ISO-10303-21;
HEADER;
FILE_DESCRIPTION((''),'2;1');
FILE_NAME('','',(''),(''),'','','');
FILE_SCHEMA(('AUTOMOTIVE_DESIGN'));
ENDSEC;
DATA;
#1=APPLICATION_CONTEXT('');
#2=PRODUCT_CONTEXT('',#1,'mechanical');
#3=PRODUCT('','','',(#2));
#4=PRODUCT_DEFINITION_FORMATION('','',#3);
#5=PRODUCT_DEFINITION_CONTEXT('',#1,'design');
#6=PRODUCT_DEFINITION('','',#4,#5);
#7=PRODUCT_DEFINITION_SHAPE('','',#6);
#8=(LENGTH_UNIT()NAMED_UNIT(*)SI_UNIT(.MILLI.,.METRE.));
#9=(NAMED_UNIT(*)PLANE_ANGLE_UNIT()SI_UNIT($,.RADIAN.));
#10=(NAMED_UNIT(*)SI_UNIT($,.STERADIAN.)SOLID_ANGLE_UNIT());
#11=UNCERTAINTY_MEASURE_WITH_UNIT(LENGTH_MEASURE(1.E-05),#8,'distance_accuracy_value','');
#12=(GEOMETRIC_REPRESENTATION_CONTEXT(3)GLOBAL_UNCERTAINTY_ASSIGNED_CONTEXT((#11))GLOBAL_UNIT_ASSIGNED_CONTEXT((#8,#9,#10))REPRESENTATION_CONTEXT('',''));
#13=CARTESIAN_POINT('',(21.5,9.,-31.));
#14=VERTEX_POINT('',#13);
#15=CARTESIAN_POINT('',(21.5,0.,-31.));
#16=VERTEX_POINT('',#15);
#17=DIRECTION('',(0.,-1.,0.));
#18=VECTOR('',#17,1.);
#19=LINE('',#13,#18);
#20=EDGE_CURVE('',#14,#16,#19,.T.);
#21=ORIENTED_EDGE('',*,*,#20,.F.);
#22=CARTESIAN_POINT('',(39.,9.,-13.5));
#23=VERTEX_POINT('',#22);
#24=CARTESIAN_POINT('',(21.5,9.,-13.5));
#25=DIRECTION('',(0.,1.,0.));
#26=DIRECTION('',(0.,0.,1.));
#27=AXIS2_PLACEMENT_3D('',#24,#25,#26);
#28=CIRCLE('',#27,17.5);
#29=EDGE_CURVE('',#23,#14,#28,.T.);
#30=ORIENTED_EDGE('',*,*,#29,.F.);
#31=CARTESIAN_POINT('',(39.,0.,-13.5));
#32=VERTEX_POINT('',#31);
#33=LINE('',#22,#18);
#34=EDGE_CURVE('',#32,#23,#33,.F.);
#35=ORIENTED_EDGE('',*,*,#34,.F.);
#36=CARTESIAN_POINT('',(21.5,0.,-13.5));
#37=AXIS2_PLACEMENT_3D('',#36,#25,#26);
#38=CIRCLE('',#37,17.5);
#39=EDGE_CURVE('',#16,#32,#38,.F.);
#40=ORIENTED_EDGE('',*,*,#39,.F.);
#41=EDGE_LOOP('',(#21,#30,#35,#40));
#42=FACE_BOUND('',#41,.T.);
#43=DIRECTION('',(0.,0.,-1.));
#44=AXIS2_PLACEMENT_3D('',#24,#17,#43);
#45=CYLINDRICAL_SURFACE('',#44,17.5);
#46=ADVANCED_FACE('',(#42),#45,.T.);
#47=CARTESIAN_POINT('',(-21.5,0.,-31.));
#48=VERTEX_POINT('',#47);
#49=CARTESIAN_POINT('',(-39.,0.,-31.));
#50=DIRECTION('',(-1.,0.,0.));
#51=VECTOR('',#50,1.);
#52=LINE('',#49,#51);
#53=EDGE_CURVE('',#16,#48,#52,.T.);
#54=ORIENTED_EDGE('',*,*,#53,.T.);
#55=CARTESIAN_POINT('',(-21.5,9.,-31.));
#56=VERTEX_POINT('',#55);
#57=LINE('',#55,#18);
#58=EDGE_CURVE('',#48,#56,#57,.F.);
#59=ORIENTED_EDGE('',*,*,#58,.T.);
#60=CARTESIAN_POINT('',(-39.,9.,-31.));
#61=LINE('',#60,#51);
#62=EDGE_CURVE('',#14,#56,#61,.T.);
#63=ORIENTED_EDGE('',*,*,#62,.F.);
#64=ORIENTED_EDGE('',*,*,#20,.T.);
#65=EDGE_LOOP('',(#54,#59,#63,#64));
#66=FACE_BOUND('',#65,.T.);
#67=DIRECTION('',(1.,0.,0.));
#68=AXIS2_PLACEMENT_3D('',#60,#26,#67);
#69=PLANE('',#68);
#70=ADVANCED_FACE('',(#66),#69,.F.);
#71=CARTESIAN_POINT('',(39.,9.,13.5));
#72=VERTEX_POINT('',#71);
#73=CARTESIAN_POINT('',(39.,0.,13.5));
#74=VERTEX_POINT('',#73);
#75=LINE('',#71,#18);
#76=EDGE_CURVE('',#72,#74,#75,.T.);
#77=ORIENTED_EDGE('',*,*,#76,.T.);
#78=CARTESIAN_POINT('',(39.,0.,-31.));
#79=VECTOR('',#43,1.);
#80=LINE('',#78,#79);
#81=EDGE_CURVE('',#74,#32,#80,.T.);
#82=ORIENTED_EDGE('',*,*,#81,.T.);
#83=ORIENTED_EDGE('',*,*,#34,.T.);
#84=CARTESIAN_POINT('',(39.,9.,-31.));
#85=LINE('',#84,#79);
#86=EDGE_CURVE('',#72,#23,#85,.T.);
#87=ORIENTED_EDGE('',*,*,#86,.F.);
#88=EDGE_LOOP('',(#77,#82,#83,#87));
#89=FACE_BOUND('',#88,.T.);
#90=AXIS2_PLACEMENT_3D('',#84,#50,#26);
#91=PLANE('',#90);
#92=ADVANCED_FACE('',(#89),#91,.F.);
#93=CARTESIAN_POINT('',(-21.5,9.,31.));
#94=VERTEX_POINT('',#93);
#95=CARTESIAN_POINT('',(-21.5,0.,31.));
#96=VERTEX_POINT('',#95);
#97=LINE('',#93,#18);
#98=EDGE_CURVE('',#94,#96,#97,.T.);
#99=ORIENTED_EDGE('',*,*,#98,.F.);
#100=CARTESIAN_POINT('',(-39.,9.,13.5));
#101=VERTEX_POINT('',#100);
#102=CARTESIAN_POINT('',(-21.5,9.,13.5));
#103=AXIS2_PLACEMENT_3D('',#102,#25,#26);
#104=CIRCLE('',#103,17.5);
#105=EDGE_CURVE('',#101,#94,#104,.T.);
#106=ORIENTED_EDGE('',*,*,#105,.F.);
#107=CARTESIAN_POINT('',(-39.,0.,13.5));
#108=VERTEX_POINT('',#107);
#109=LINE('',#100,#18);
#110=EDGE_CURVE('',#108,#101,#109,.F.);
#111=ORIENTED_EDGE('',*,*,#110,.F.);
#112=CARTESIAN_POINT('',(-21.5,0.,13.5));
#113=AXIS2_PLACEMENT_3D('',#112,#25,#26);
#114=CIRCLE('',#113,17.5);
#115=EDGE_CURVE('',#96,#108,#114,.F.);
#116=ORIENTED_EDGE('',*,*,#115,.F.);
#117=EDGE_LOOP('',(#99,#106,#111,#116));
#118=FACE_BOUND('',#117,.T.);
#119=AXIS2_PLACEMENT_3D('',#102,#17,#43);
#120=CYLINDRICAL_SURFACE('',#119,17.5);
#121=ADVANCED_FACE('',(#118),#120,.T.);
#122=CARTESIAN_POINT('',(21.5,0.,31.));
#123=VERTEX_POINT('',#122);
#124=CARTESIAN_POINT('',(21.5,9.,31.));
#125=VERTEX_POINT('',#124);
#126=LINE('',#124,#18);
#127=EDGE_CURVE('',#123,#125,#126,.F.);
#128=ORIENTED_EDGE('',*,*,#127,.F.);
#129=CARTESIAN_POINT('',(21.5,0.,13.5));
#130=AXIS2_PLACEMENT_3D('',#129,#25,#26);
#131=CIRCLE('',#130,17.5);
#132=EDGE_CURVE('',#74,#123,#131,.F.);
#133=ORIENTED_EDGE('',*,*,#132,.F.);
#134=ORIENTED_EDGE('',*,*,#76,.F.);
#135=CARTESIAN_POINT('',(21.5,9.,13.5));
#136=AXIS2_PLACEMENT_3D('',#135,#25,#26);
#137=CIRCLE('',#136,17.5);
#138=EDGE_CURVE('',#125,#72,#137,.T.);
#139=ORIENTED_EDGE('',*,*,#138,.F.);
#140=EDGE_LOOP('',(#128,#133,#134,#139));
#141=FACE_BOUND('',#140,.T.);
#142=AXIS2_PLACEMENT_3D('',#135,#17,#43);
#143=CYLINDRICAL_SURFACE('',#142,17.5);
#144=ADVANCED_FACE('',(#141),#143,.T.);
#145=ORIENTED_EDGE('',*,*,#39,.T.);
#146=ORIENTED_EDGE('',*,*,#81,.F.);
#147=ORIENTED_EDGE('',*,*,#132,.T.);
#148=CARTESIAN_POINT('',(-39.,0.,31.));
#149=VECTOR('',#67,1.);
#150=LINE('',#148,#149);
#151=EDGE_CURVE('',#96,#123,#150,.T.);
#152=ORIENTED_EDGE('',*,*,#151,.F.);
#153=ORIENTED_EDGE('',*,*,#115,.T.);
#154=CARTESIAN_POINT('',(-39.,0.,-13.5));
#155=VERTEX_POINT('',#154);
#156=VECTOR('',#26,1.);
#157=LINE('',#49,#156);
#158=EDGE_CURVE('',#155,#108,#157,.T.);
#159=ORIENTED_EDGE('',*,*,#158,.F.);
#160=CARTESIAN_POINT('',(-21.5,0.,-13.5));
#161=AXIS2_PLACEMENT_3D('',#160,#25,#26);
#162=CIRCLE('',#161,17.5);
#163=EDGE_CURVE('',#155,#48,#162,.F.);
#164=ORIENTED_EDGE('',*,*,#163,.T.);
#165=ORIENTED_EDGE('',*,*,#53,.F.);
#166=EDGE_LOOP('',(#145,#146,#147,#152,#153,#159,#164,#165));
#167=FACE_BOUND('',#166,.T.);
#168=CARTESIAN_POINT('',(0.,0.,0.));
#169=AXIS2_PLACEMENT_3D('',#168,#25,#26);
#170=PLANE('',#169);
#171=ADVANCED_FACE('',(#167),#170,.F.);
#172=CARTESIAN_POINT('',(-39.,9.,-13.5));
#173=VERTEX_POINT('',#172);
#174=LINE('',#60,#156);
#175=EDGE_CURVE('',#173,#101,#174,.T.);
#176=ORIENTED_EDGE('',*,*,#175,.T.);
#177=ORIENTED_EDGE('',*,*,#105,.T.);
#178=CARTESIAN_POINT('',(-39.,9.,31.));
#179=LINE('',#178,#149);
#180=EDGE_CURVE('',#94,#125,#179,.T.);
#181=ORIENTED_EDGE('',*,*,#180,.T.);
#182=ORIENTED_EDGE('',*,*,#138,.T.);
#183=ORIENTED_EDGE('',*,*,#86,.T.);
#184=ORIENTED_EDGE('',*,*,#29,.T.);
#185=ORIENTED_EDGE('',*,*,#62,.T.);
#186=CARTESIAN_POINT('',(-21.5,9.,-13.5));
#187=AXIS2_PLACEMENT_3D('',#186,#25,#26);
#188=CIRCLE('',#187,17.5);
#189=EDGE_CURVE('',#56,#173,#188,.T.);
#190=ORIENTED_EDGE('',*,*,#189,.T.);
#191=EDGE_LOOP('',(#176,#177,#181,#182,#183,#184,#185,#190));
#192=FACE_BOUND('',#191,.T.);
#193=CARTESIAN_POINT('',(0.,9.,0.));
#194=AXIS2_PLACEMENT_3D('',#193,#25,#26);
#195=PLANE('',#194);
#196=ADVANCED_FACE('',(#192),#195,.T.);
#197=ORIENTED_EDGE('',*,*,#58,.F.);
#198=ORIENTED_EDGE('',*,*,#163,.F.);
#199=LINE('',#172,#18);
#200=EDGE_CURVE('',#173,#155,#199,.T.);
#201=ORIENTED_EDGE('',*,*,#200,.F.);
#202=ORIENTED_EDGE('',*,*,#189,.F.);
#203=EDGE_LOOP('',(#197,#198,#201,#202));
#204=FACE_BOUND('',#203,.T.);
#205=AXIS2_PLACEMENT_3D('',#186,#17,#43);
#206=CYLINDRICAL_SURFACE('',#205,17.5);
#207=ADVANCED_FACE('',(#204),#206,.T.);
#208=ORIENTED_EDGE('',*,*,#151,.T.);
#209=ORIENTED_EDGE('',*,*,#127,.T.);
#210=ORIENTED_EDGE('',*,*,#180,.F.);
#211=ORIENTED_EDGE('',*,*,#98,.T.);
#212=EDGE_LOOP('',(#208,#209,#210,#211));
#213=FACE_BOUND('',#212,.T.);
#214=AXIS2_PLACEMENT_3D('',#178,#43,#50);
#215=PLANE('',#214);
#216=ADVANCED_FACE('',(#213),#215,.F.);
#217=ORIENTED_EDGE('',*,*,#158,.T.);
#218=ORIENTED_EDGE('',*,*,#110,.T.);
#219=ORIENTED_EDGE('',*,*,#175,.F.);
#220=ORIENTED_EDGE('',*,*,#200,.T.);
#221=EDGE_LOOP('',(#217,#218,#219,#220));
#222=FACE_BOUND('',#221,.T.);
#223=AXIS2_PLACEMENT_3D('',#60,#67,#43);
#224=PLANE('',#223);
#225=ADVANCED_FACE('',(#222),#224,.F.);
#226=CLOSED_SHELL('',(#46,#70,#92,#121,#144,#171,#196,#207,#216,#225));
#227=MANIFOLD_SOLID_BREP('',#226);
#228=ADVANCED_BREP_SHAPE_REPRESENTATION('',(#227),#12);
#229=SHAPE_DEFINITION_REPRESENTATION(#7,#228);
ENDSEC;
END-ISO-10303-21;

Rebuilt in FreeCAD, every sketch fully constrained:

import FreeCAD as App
import Part
import Sketcher
from FreeCAD import Vector
Q = App.Units.Quantity


def edges_at(feature, points):
    """Names of the edges that pass closest to the given points."""
    edges = feature.Shape.Edges
    near = lambda p: min(range(len(edges)), key=lambda i: edges[i].distToShape(Part.Vertex(*p))[0])
    return sorted({f"Edge{near(p) + 1}" for p in points})


def add_polygon(sketch, points):
    """Adds a closed chain of lines whose ends are joined by coincident constraints."""
    first, n = sketch.GeometryCount, len(points)
    for a, b in zip(points, points[1:] + points[:1]):
        sketch.addGeometry(Part.LineSegment(App.Vector(*a, 0), App.Vector(*b, 0)), False)
    for i in range(n):
        sketch.addConstraint(Sketcher.Constraint("Coincident", first + i, 2, first + (i + 1) % n, 1))

doc = App.newDocument("Part")
params = doc.addObject("Spreadsheet::Sheet", "Params")
for row, (alias, value) in enumerate([
    ("sketch1_width", "78 mm"),
    ("sketch1_height", "62 mm"),
    ("pad1_length", "9 mm"),
    ("fillet_radius", "17.5 mm"),
], start=1):
    params.set(f"A{row}", alias)
    params.set(f"B{row}", "=" + value)
    params.setAlias(f"B{row}", alias)

body = doc.addObject("PartDesign::Body", "Body")

sketch1 = body.newObject("Sketcher::SketchObject", "Sketch")
sketch1.AttachmentSupport = (doc.getObject("XZ_Plane"), [""])
sketch1.MapMode = "FlatFace"
add_polygon(sketch1, [(-39, -31), (-39, 31), (39, 31), (39, -31)])
sketch1.addConstraint([
    Sketcher.Constraint("Vertical", 0),
    Sketcher.Constraint("Horizontal", 1),
    Sketcher.Constraint("Vertical", 2),
    Sketcher.Constraint("Horizontal", 3),
    Sketcher.Constraint("Symmetric", 0, 2, 2, 2, -1, 1),
    Sketcher.Constraint("DistanceX", 1, 1, 1, 2, Q("78 mm")),
    Sketcher.Constraint("DistanceY", 0, 1, 0, 2, Q("62 mm")),
])
sketch1.setExpression("Constraints[9]", "Params.sketch1_width")
sketch1.setExpression("Constraints[10]", "Params.sketch1_height")
pad1 = body.newObject("PartDesign::Pad", "Pad")
pad1.Profile = sketch1
pad1.setExpression("Length", "Params.pad1_length")
pad1.Reversed = True
doc.recompute()

fillet = body.newObject("PartDesign::Fillet", "Fillet")
fillet.Base = (pad1, edges_at(pad1, [
    (-39, 4.5, -31),
    (39, 4.5, -31),
    (39, 4.5, 31),
    (-39, 4.5, 31),
]))
fillet.setExpression("Radius", "Params.fillet_radius")

doc.recompute()
